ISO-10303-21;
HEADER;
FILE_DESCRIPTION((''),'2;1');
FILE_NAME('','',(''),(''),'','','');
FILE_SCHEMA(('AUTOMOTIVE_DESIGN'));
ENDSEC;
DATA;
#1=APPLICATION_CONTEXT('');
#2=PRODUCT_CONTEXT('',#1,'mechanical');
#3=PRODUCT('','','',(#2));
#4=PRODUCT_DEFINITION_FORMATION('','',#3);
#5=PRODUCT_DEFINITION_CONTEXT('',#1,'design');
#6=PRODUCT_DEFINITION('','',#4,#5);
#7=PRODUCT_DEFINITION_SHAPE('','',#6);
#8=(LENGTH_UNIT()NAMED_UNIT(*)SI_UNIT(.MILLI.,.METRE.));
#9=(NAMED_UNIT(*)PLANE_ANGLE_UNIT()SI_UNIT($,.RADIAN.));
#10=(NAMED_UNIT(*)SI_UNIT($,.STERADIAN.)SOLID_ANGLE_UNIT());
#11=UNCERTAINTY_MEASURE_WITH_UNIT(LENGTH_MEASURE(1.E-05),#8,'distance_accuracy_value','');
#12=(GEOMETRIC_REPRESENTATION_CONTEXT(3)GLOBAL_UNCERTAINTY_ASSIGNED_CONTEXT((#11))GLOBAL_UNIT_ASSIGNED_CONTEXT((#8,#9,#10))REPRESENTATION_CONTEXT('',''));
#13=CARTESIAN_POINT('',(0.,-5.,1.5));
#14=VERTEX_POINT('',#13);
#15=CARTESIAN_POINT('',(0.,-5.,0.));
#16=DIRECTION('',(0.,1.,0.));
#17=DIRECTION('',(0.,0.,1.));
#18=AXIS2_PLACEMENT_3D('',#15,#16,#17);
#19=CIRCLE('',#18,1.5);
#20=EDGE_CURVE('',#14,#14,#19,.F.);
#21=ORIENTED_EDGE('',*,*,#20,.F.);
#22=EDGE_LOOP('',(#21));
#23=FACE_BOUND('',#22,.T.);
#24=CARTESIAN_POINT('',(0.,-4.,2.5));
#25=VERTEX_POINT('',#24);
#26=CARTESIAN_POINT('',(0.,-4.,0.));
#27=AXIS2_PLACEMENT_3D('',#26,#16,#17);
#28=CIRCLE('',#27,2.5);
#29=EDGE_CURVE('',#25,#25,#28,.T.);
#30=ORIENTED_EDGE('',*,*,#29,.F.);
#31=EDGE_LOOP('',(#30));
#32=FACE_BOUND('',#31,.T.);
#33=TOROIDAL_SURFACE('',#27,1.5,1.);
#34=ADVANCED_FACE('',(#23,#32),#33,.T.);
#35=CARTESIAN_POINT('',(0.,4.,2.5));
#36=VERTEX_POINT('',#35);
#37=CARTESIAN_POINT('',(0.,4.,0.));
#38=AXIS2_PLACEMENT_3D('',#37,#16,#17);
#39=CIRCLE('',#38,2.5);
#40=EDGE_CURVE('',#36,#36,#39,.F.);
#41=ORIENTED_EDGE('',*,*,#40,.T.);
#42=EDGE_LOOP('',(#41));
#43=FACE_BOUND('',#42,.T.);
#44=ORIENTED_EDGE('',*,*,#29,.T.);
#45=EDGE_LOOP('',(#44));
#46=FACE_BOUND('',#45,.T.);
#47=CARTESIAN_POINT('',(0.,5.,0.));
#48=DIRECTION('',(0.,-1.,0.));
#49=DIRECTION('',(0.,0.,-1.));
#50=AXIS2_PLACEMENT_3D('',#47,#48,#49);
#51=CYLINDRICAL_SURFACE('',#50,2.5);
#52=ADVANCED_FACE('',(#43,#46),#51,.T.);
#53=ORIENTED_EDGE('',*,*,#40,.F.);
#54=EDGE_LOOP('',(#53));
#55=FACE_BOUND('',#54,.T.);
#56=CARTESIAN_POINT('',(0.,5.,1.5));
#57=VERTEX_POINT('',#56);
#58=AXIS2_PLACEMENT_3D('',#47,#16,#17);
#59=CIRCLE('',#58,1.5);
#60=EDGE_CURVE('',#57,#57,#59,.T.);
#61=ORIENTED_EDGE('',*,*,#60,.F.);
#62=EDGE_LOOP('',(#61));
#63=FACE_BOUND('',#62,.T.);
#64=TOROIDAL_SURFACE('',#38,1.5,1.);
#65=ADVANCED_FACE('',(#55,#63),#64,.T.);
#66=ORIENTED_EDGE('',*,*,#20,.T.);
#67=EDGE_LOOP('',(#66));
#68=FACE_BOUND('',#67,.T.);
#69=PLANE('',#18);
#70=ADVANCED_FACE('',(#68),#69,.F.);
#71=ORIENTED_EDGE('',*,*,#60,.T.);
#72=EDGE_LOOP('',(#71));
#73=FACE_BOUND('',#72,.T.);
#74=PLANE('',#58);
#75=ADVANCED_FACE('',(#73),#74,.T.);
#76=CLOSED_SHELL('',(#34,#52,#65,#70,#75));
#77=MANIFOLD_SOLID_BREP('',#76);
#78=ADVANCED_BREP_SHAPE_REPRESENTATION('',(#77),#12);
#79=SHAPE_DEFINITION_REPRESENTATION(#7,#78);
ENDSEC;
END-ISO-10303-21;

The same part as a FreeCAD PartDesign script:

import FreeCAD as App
import Part
import Sketcher


def edges_at(feature, points):
    """Names of the edges that pass closest to the given points."""
    edges = feature.Shape.Edges
    near = lambda p: min(range(len(edges)), key=lambda i: edges[i].distToShape(Part.Vertex(*p))[0])
    return sorted({f"Edge{near(p) + 1}" for p in points})

doc = App.newDocument("Part")
params = doc.addObject("Spreadsheet::Sheet", "Params")
for row, (alias, value) in enumerate([
    ("sketch1_diameter", "5 mm"),
    ("pad1_length", "10 mm"),
    ("fillet_radius", "1 mm"),
], start=1):
    params.set(f"A{row}", alias)
    params.set(f"B{row}", "=" + value)
    params.setAlias(f"B{row}", alias)

body = doc.addObject("PartDesign::Body", "Body")

# Sketch on XZ plane
sketch1 = body.newObject("Sketcher::SketchObject", "Sketch")
sketch1.AttachmentSupport = (doc.getObject("XZ_Plane"), [""])
sketch1.MapMode = "FlatFace"
sketch1.addGeometry(Part.Circle(App.Vector(0, 0, 0), App.Vector(0, 0, 1), 2.5), False)
sketch1.addConstraint([
    Sketcher.Constraint("Coincident", 0, 3, -1, 1),
    Sketcher.Constraint("Diameter", 0, 5.0),
])
sketch1.setExpression("Constraints[1]", "Params.sketch1_diameter")
pad1 = body.newObject("PartDesign::Pad", "Pad")
pad1.Profile = sketch1
pad1.setExpression("Length", "Params.pad1_length")
pad1.Midplane = True
doc.recompute()

fillet = body.newObject("PartDesign::Fillet", "Fillet")
fillet.Base = (pad1, edges_at(pad1, [(0, -5, -2.5), (0, 5, -2.5)]))
fillet.setExpression("Radius", "Params.fillet_radius")

doc.recompute()
